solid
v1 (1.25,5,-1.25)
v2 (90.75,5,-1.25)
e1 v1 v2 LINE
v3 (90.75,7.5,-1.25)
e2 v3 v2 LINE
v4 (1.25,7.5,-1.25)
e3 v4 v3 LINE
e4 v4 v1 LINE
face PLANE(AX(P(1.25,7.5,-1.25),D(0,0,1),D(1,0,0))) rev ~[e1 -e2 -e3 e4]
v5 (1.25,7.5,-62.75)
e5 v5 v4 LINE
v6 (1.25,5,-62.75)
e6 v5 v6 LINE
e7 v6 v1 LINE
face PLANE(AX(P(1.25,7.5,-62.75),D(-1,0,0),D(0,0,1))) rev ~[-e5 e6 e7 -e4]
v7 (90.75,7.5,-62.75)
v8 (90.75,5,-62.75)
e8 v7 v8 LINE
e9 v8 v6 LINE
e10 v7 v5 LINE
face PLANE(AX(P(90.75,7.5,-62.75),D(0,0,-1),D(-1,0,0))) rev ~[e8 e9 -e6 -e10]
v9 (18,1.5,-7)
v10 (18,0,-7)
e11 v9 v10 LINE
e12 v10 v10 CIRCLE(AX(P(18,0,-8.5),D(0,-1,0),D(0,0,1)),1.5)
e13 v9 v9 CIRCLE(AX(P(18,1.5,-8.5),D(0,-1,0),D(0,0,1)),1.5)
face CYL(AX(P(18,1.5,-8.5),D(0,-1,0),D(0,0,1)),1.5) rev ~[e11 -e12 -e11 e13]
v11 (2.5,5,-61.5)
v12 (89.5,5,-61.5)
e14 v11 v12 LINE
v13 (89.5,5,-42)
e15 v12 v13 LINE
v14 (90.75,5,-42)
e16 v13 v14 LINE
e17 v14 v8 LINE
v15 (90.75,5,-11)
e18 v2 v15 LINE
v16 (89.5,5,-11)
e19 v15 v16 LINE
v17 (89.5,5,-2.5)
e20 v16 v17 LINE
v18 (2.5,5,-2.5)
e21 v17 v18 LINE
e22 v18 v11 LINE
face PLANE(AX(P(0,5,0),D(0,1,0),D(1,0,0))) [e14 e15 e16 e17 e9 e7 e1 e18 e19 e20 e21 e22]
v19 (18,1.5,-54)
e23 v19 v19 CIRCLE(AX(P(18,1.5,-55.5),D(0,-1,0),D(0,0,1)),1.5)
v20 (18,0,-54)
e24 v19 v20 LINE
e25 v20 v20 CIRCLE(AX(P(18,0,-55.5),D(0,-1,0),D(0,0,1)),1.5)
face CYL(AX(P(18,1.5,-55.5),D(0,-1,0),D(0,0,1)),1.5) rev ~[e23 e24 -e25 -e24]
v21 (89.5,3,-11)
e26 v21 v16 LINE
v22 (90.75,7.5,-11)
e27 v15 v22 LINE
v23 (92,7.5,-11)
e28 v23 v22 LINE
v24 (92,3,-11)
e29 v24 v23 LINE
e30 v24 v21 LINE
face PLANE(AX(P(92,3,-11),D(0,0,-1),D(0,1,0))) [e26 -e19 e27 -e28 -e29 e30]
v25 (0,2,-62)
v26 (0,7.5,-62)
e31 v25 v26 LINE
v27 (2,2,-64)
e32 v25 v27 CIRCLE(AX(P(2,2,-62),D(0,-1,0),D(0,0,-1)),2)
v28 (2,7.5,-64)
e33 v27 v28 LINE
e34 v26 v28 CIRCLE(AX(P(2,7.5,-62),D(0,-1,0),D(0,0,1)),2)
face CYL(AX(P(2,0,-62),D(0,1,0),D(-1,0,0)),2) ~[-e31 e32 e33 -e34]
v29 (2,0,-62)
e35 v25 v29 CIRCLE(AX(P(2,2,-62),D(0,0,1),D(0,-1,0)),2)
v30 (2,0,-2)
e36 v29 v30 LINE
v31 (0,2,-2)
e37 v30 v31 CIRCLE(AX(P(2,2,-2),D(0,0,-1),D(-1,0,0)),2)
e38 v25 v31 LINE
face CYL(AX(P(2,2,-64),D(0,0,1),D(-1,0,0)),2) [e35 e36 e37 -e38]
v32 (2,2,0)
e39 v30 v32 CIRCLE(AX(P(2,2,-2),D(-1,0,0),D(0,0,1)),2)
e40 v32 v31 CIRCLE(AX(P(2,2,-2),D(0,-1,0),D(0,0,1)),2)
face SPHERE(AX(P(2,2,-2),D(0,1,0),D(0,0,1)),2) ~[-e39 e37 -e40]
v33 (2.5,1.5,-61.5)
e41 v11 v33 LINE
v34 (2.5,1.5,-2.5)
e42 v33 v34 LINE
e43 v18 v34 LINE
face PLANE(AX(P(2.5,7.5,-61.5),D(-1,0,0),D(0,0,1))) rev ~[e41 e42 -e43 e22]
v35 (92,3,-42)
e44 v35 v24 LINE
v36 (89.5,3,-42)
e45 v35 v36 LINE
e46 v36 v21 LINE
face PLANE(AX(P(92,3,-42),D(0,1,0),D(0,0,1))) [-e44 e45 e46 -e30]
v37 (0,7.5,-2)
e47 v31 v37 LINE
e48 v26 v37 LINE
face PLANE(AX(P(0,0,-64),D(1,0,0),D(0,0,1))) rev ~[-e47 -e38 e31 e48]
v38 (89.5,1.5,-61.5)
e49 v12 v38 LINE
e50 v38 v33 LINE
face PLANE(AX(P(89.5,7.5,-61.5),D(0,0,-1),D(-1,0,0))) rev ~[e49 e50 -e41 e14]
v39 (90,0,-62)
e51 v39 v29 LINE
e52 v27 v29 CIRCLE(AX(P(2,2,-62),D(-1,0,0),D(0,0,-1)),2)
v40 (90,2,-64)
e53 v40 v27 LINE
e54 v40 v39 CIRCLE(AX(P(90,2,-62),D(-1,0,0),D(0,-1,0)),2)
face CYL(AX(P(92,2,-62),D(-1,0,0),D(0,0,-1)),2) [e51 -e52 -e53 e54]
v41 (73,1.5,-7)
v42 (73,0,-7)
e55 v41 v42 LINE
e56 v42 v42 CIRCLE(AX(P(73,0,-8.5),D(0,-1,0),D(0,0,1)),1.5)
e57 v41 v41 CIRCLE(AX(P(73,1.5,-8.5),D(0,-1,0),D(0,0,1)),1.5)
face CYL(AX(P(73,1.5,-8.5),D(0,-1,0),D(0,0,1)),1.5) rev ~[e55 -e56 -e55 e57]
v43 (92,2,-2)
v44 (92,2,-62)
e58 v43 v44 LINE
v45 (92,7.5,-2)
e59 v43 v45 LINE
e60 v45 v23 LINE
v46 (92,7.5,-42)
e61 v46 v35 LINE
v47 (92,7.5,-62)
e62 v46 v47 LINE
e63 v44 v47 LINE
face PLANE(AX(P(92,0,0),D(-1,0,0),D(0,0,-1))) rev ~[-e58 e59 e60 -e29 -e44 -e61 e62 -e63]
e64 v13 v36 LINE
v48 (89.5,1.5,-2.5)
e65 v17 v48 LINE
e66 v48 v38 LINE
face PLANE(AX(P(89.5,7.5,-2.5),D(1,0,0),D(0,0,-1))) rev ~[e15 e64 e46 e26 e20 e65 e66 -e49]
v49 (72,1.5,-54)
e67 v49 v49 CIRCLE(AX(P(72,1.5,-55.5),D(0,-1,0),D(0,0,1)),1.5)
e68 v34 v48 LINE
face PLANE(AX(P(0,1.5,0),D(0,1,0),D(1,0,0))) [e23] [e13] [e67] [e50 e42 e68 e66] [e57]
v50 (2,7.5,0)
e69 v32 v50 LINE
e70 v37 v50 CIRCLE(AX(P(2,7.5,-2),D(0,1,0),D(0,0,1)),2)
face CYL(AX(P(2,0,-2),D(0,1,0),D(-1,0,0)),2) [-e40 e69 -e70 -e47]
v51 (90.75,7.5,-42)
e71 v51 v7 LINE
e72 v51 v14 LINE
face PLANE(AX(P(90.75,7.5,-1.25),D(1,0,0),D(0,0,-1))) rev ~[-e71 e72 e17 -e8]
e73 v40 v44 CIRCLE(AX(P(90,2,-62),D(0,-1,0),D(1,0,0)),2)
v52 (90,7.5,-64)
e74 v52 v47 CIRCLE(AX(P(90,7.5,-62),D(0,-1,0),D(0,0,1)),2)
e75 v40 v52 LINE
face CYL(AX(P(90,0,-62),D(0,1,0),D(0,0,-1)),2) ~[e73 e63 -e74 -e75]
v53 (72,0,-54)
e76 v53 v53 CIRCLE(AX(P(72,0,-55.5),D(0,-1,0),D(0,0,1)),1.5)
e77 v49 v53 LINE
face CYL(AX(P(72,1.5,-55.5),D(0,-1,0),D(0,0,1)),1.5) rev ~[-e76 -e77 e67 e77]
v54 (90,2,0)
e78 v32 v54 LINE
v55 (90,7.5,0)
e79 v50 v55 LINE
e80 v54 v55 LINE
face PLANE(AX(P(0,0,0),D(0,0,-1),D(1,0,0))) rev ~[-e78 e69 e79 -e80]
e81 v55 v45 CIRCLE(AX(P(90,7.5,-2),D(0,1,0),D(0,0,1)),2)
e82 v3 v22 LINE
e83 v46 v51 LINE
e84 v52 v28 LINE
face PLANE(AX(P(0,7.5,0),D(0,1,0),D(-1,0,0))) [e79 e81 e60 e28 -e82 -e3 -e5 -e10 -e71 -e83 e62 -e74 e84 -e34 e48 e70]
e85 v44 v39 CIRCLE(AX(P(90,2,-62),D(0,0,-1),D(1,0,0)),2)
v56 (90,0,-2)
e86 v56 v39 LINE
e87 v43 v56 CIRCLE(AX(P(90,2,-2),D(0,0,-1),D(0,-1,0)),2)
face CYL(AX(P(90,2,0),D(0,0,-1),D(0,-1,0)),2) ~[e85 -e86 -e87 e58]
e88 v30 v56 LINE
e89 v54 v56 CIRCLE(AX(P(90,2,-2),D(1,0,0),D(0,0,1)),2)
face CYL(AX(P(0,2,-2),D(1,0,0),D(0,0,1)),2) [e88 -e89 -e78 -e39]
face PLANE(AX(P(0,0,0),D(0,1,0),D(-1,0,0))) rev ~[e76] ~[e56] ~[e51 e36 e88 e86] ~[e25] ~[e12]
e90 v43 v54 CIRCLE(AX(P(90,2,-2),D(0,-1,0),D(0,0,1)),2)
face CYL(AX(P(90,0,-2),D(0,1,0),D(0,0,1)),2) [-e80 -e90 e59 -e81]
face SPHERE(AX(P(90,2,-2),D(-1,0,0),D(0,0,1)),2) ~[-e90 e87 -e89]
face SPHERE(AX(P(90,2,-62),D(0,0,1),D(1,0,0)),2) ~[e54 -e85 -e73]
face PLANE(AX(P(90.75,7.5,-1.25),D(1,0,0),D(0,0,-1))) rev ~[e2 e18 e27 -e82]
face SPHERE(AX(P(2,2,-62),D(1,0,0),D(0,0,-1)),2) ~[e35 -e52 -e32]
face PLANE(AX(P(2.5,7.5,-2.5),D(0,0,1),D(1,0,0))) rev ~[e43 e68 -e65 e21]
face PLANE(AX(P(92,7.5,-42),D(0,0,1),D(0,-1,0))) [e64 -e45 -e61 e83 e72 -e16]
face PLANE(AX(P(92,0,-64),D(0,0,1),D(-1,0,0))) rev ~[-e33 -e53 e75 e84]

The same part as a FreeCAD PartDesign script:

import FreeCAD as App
import Part
import Sketcher
from FreeCAD import Vector
Q = App.Units.Quantity


def edges_at(feature, points):
    """Names of the edges that pass closest to the given points."""
    edges = feature.Shape.Edges
    near = lambda p: min(range(len(edges)), key=lambda i: edges[i].distToShape(Part.Vertex(*p))[0])
    return sorted({f"Edge{near(p) + 1}" for p in points})

doc = App.newDocument("Part")
body = doc.addObject("PartDesign::Body", "Body")

sketch1 = body.newObject("Sketcher::SketchObject", "Sketch")
sketch1.AttachmentSupport = (doc.getObject("XZ_Plane"), [""])
sketch1.MapMode = "FlatFace"
sketch1.addGeometry(Part.LineSegment(Vector(0, -64, 0), Vector(0, 0, 0)), False)
sketch1.addGeometry(Part.LineSegment(Vector(0, 0, 0), Vector(92, 0, 0)), False)
sketch1.addGeometry(Part.LineSegment(Vector(92, 0, 0), Vector(92, -64, 0)), False)
sketch1.addGeometry(Part.LineSegment(Vector(92, -64, 0), Vector(0, -64, 0)), False)
sketch1.addConstraint(Sketcher.Constraint("Coincident", 0, 2, 1, 1))
sketch1.addConstraint(Sketcher.Constraint("Coincident", 1, 2, 2, 1))
sketch1.addConstraint(Sketcher.Constraint("Coincident", 2, 2, 3, 1))
sketch1.addConstraint(Sketcher.Constraint("Coincident", 3, 2, 0, 1))
sketch1.addConstraint(Sketcher.Constraint("Vertical", 0))
sketch1.addConstraint(Sketcher.Constraint("Horizontal", 1))
sketch1.addConstraint(Sketcher.Constraint("Vertical", 2))
sketch1.addConstraint(Sketcher.Constraint("Horizontal", 3))
sketch1.addConstraint(Sketcher.Constraint("Coincident", 0, 2, -1, 1))
sketch1.addConstraint(Sketcher.Constraint("DistanceX", 1, 1, 1, 2, Q("92 mm")))
sketch1.addConstraint(Sketcher.Constraint("DistanceY", 0, 1, 0, 2, Q("64 mm")))
pad1 = body.newObject("PartDesign::Pad", "Pad")
pad1.Profile = sketch1
pad1.Length = 7.5
pad1.Reversed = True

sketch2 = body.newObject("Sketcher::SketchObject", "Sketch001")
sketch2.AttachmentSupport = (doc.getObject("XZ_Plane"), [""])
sketch2.MapMode = "FlatFace"
sketch2.AttachmentOffset = App.Placement(Vector(0, 0, -7.5), App.Rotation())
sketch2.addGeometry(Part.LineSegment(Vector(2, -62, 0), Vector(2, -2, 0)), False)
sketch2.addGeometry(Part.LineSegment(Vector(2, -2, 0), Vector(90, -2, 0)), False)
sketch2.addGeometry(Part.LineSegment(Vector(90, -2, 0), Vector(90, -62, 0)), False)
sketch2.addGeometry(Part.LineSegment(Vector(90, -62, 0), Vector(2, -62, 0)), False)
sketch2.addConstraint(Sketcher.Constraint("Coincident", 0, 2, 1, 1))
sketch2.addConstraint(Sketcher.Constraint("Coincident", 1, 2, 2, 1))
sketch2.addConstraint(Sketcher.Constraint("Coincident", 2, 2, 3, 1))
sketch2.addConstraint(Sketcher.Constraint("Coincident", 3, 2, 0, 1))
sketch2.addConstraint(Sketcher.Constraint("Vertical", 0))
sketch2.addConstraint(Sketcher.Constraint("Horizontal", 1))
sketch2.addConstraint(Sketcher.Constraint("Vertical", 2))
sketch2.addConstraint(Sketcher.Constraint("Horizontal", 3))
sketch2.addConstraint(Sketcher.Constraint("DistanceX", -1, 1, 0, 2, Q("2.5 mm")))
sketch2.addConstraint(Sketcher.Constraint("DistanceY", 0, 2, -1, 1, Q("2.5 mm")))
sketch2.addConstraint(Sketcher.Constraint("DistanceX", 1, 1, 1, 2, Q("87 mm")))
sketch2.addConstraint(Sketcher.Constraint("DistanceY", 0, 1, 0, 2, Q("59 mm")))
pocket1 = body.newObject("PartDesign::Pocket", "Pocket")
pocket1.Profile = sketch2
pocket1.Length = 6
pocket1.Reversed = True
doc.recompute()

fillet = body.newObject("PartDesign::Fillet", "Fillet")
fillet.Base = (pocket1, edges_at(pocket1, [
    (0, 3.75, 0),
    (46, 0, 0),
    (92, 3.75, 0),
    (92, 0, -32),
    (92, 3.75, -64),
    (46, 0, -64),
    (0, 3.75, -64),
    (0, 0, -32),
]))
fillet.Radius = 2

sketch3 = body.newObject("Sketcher::SketchObject", "Sketch002")
sketch3.AttachmentSupport = (doc.getObject("XZ_Plane"), [""])
sketch3.MapMode = "FlatFace"
sketch3.AttachmentOffset = App.Placement(Vector(0, 0, -7.5), App.Rotation())
sketch3.addGeometry(Part.LineSegment(Vector(1, -63, 0), Vector(1, -1, 0)), False)
sketch3.addGeometry(Part.LineSegment(Vector(1, -1, 0), Vector(91, -1, 0)), False)
sketch3.addGeometry(Part.LineSegment(Vector(91, -1, 0), Vector(91, -63, 0)), False)
sketch3.addGeometry(Part.LineSegment(Vector(91, -63, 0), Vector(1, -63, 0)), False)
sketch3.addConstraint(Sketcher.Constraint("Coincident", 0, 2, 1, 1))
sketch3.addConstraint(Sketcher.Constraint("Coincident", 1, 2, 2, 1))
sketch3.addConstraint(Sketcher.Constraint("Coincident", 2, 2, 3, 1))
sketch3.addConstraint(Sketcher.Constraint("Coincident", 3, 2, 0, 1))
sketch3.addConstraint(Sketcher.Constraint("Vertical", 0))
sketch3.addConstraint(Sketcher.Constraint("Horizontal", 1))
sketch3.addConstraint(Sketcher.Constraint("Vertical", 2))
sketch3.addConstraint(Sketcher.Constraint("Horizontal", 3))
sketch3.addConstraint(Sketcher.Constraint("DistanceX", -1, 1, 0, 2, Q("1.25 mm")))
sketch3.addConstraint(Sketcher.Constraint("DistanceY", 0, 2, -1, 1, Q("1.25 mm")))
sketch3.addConstraint(Sketcher.Constraint("DistanceX", 1, 1, 1, 2, Q("89.5 mm")))
sketch3.addConstraint(Sketcher.Constraint("DistanceY", 0, 1, 0, 2, Q("61.5 mm")))
pocket2 = body.newObject("PartDesign::Pocket", "Pocket001")
pocket2.Profile = sketch3
pocket2.Length = 2.5
pocket2.Reversed = True

sketch4 = body.newObject("Sketcher::SketchObject", "Sketch003")
sketch4.AttachmentSupport = (doc.getObject("XZ_Plane"), [""])
sketch4.MapMode = "FlatFace"
sketch4.AttachmentOffset = App.Placement(Vector(0, 0, -1.5), App.Rotation())
sketch4.addGeometry(Part.Circle(Vector(18, -55.5, 0), Vector(0, 0, 1), 1.5), False)
sketch4.addGeometry(Part.Circle(Vector(18, -8.5, 0), Vector(0, 0, 1), 1.5), False)
sketch4.addGeometry(Part.Circle(Vector(73, -8.5, 0), Vector(0, 0, 1), 1.5), False)
sketch4.addGeometry(Part.Circle(Vector(72, -55.5, 0), Vector(0, 0, 1), 1.5), False)
sketch4.addConstraint(Sketcher.Constraint("Equal", 0, 1))
sketch4.addConstraint(Sketcher.Constraint("Equal", 1, 2))
sketch4.addConstraint(Sketcher.Constraint("Equal", 2, 3))
sketch4.addConstraint(Sketcher.Constraint("Horizontal", 1, 3, 2, 3))
sketch4.addConstraint(Sketcher.Constraint("Horizontal", 0, 3, 3, 3))
sketch4.addConstraint(Sketcher.Constraint("Vertical", 0, 3, 1, 3))
sketch4.addConstraint(Sketcher.Constraint("Diameter", 0, Q("3 mm")))
sketch4.addConstraint(Sketcher.Constraint("DistanceX", -1, 1, 0, 3, Q("18 mm")))
sketch4.addConstraint(Sketcher.Constraint("DistanceX", -1, 1, 2, 3, Q("73 mm")))
sketch4.addConstraint(Sketcher.Constraint("DistanceX", -1, 1, 3, 3, Q("72 mm")))
sketch4.addConstraint(Sketcher.Constraint("DistanceY", 0, 3, 1, 3, Q("47 mm")))
sketch4.addConstraint(Sketcher.Constraint("DistanceY", 0, 3, -1, 1, Q("55.5 mm")))
doc.recompute()
hole = body.newObject("PartDesign::Hole", "Hole")
hole.Profile = sketch4
hole.ThreadType = "None"
hole.Diameter = 3
hole.DepthType = "ThroughAll"
hole.Reversed = True

sketch5 = body.newObject("Sketcher::SketchObject", "Sketch004")
sketch5.AttachmentSupport = (doc.getObject("YZ_Plane"), [""])
sketch5.MapMode = "FlatFace"
sketch5.AttachmentOffset = App.Placement(Vector(0, 0, 92), App.Rotation())
sketch5.addGeometry(Part.LineSegment(Vector(7.5, -42, 0), Vector(7.5, -11, 0)), False)
sketch5.addGeometry(Part.LineSegment(Vector(7.5, -11, 0), Vector(3, -11, 0)), False)
sketch5.addGeometry(Part.LineSegment(Vector(3, -11, 0), Vector(3, -42, 0)), False)
sketch5.addGeometry(Part.LineSegment(Vector(3, -42, 0), Vector(7.5, -42, 0)), False)
sketch5.addConstraint(Sketcher.Constraint("Coincident", 0, 2, 1, 1))
sketch5.addConstraint(Sketcher.Constraint("Coincident", 1, 2, 2, 1))
sketch5.addConstraint(Sketcher.Constraint("Coincident", 2, 2, 3, 1))
sketch5.addConstraint(Sketcher.Constraint("Coincident", 3, 2, 0, 1))
sketch5.addConstraint(Sketcher.Constraint("Vertical", 0))
sketch5.addConstraint(Sketcher.Constraint("Horizontal", 1))
sketch5.addConstraint(Sketcher.Constraint("Vertical", 2))
sketch5.addConstraint(Sketcher.Constraint("Horizontal", 3))
sketch5.addConstraint(Sketcher.Constraint("DistanceX", 1, 2, 1, 1, Q("4.5 mm")))
sketch5.addConstraint(Sketcher.Constraint("DistanceY", 0, 1, 0, 2, Q("31 mm")))
sketch5.addConstraint(Sketcher.Constraint("DistanceY", 0, 2, -1, 1, Q("11 mm")))
sketch5.addConstraint(Sketcher.Constraint("DistanceX", -1, 1, 1, 2, Q("3 mm")))
pocket3 = body.newObject("PartDesign::Pocket", "Pocket002")
pocket3.Profile = sketch5
pocket3.Length = 2.5

doc.recompute()
